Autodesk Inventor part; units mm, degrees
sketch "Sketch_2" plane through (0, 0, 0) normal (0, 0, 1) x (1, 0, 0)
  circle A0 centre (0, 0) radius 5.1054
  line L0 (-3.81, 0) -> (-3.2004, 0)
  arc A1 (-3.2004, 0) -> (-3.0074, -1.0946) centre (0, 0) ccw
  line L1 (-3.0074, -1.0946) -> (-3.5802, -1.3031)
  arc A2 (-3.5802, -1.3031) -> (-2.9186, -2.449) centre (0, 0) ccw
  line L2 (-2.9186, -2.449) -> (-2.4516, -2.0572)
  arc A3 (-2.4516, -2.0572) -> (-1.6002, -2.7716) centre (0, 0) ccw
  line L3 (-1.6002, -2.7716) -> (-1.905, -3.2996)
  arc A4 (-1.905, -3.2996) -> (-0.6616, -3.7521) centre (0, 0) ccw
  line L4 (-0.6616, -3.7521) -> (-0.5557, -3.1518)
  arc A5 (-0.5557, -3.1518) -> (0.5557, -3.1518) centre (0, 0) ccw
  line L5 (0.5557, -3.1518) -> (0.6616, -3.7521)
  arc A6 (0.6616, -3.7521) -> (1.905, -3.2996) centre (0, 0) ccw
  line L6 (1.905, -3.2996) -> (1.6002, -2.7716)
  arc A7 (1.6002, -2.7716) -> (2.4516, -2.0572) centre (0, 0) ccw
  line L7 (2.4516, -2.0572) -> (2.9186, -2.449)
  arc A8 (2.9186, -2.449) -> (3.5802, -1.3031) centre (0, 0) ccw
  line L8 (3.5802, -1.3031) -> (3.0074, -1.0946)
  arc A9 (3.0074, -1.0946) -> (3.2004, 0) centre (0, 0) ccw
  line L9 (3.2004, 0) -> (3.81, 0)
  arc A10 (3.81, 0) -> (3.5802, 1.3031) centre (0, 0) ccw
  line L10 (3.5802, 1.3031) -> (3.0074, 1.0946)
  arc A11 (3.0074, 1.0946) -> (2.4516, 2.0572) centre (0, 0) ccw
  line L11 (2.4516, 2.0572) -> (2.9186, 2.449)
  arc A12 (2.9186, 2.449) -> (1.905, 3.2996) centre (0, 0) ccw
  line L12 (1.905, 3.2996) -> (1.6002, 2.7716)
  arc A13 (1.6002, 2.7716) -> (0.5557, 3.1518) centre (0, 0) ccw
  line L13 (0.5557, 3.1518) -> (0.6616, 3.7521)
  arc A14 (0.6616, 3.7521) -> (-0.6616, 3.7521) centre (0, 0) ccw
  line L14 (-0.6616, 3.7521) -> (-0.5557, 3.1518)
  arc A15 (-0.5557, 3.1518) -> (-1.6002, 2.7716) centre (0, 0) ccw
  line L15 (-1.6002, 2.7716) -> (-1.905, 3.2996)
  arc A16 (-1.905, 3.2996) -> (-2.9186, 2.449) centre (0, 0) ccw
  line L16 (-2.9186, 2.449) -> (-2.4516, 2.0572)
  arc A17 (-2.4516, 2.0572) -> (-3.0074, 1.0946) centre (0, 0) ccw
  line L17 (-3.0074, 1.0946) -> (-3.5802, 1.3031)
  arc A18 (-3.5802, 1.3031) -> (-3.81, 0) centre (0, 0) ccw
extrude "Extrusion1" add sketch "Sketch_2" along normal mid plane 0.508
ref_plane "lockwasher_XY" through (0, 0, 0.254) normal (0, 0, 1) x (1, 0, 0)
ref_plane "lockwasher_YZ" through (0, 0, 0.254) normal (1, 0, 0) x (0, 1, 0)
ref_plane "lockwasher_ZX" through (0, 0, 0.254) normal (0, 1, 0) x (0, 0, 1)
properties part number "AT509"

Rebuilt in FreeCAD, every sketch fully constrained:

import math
import FreeCAD as App
import Part
import Sketcher

V = App.Vector
Q = App.Units.Quantity

doc = App.newDocument("Part")
body = doc.addObject("PartDesign::Body", "Body")

sketch1 = body.newObject("Sketcher::SketchObject", "Sketch")
sketch1.AttachmentSupport = (doc.getObject("XY_Plane"), [""])
sketch1.MapMode = "FlatFace"
sketch1.addGeometry(Part.Circle(V(0, 0, 0), V(0, 0, 1), 5.1054), False)
sketch1.addGeometry(Part.LineSegment(V(-3.2004, 0, 0), V(-3.81, 0, 0)), False)
sketch1.addGeometry(Part.ArcOfCircle(Part.Circle(V(0, 0, 0), V(0, 0, 1), 3.810037), math.radians(159.999805), math.radians(180)), False)
sketch1.addGeometry(Part.LineSegment(V(-3.5802, 1.3031, 0), V(-3.0074, 1.0946, 0)), False)
sketch1.addGeometry(Part.ArcOfCircle(Part.Circle(V(0, 0, 0), V(0, 0, 1), 3.200413), math.radians(139.999131), math.radians(160.000069)), False)
sketch1.addGeometry(Part.LineSegment(V(-2.4516, 2.0572, 0), V(-2.9186, 2.449, 0)), False)
sketch1.addGeometry(Part.ArcOfCircle(Part.Circle(V(-0.001387, 0.001981, 0), V(0, 0, 1), 3.807628), math.radians(119.996503), math.radians(140.009375)), False)
sketch1.addGeometry(Part.LineSegment(V(-1.905, 3.2996, 0), V(-1.6002, 2.7716, 0)), False)
sketch1.addGeometry(Part.ArcOfCircle(Part.Circle(V(-0.000319, 0.001192, 0), V(0, 0, 1), 3.199184), math.radians(99.997239), math.radians(120.005967)), False)
sketch1.addGeometry(Part.LineSegment(V(-0.5557, 3.1518, 0), V(-0.6616, 3.7521, 0)), False)
sketch1.addGeometry(Part.ArcOfCircle(Part.Circle(V(0, 0, 0), V(0, 0, 1), 3.809983), math.radians(79.999948), math.radians(100.000052)), False)
sketch1.addGeometry(Part.LineSegment(V(0.6616, 3.7521, 0), V(0.5557, 3.1518, 0)), False)
sketch1.addGeometry(Part.ArcOfCircle(Part.Circle(V(-0.000522, -0.001119, 0), V(0, 0, 1), 3.201606), math.radians(60.001678), math.radians(79.995117)), False)
sketch1.addGeometry(Part.LineSegment(V(1.6002, 2.7716, 0), V(1.905, 3.2996, 0)), False)
sketch1.addGeometry(Part.ArcOfCircle(Part.Circle(V(-0.001712, -0.001712, 0), V(0, 0, 1), 3.812377), math.radians(40.003216), math.radians(59.990905)), False)
sketch1.addGeometry(Part.LineSegment(V(2.9186, 2.449, 0), V(2.4516, 2.0572, 0)), False)
sketch1.addGeometry(Part.ArcOfCircle(Part.Circle(V(0, 0, 0), V(0, 0, 1), 3.200376), math.radians(19.999931), math.radians(40.000869)), False)
sketch1.addGeometry(Part.LineSegment(V(3.0074, 1.0946, 0), V(3.5802, 1.3031, 0)), False)
sketch1.addGeometry(Part.ArcOfCircle(Part.Circle(V(0, 0, 0), V(0, 0, 1), 3.809964), math.radians(0), math.radians(20.000195)), False)
sketch1.addGeometry(Part.LineSegment(V(3.81, 0, 0), V(3.2004, 0, 0)), False)
sketch1.addGeometry(Part.ArcOfCircle(Part.Circle(V(0, 0, 0), V(0, 0, 1), 3.200376), math.radians(-19.999931), math.radians(0)), False)
sketch1.addGeometry(Part.LineSegment(V(3.0074, -1.0946, 0), V(3.5802, -1.3031, 0)), False)
sketch1.addGeometry(Part.ArcOfCircle(Part.Circle(V(0, 0, 0), V(0, 0, 1), 3.810037), math.radians(-40.000044), math.radians(-20.000195)), False)
sketch1.addGeometry(Part.LineSegment(V(2.9186, -2.449, 0), V(2.4516, -2.0572, 0)), False)
sketch1.addGeometry(Part.ArcOfCircle(Part.Circle(V(0, 0, 0), V(0, 0, 1), 3.200413), math.radians(-59.999752), math.radians(-40.000869)), False)
sketch1.addGeometry(Part.LineSegment(V(1.6002, -2.7716, 0), V(1.905, -3.2996, 0)), False)
sketch1.addGeometry(Part.ArcOfCircle(Part.Circle(V(-0.000467, 0.001744, 0), V(0, 0, 1), 3.811781), math.radians(-79.997583), math.radians(-60.007348)), False)
sketch1.addGeometry(Part.LineSegment(V(0.6616, -3.7521, 0), V(0.5557, -3.1518, 0)), False)
sketch1.addGeometry(Part.ArcOfCircle(Part.Circle(V(0, 0, 0), V(0, 0, 1), 3.200413), math.radians(-99.999165), math.radians(-80.000835)), False)
sketch1.addGeometry(Part.LineSegment(V(-0.5557, -3.1518, 0), V(-0.6616, -3.7521, 0)), False)
sketch1.addGeometry(Part.ArcOfCircle(Part.Circle(V(-0.000762, -0.001635, 0), V(0, 0, 1), 3.808241), math.radians(-120.00204), math.radians(-99.993029)), False)
sketch1.addGeometry(Part.LineSegment(V(-1.905, -3.2996, 0), V(-1.6002, -2.7716, 0)), False)
sketch1.addGeometry(Part.ArcOfCircle(Part.Circle(V(0, 0, 0), V(0, 0, 1), 3.200376), math.radians(-139.999131), math.radians(-120.000248)), False)
sketch1.addGeometry(Part.LineSegment(V(-2.4516, -2.0572, 0), V(-2.9186, -2.449, 0)), False)
sketch1.addGeometry(Part.ArcOfCircle(Part.Circle(V(0, 0, 0), V(0, 0, 1), 3.809964), math.radians(-159.999805), math.radians(-139.999956)), False)
sketch1.addGeometry(Part.LineSegment(V(-3.5802, -1.3031, 0), V(-3.0074, -1.0946, 0)), False)
sketch1.addGeometry(Part.ArcOfCircle(Part.Circle(V(0, 0, 0), V(0, 0, 1), 3.200413), math.radians(180), math.radians(199.999931)), False)
sketch1.addConstraint(Sketcher.Constraint("Coincident", 1, 2, 2, 2))
sketch1.addConstraint(Sketcher.Constraint("Coincident", 2, 1, 3, 1))
sketch1.addConstraint(Sketcher.Constraint("Coincident", 3, 2, 4, 2))
sketch1.addConstraint(Sketcher.Constraint("Coincident", 4, 1, 5, 1))
sketch1.addConstraint(Sketcher.Constraint("Coincident", 5, 2, 6, 2))
sketch1.addConstraint(Sketcher.Constraint("Coincident", 6, 1, 7, 1))
sketch1.addConstraint(Sketcher.Constraint("Coincident", 7, 2, 8, 2))
sketch1.addConstraint(Sketcher.Constraint("Coincident", 8, 1, 9, 1))
sketch1.addConstraint(Sketcher.Constraint("Coincident", 9, 2, 10, 2))
sketch1.addConstraint(Sketcher.Constraint("Coincident", 10, 1, 11, 1))
sketch1.addConstraint(Sketcher.Constraint("Coincident", 11, 2, 12, 2))
sketch1.addConstraint(Sketcher.Constraint("Coincident", 12, 1, 13, 1))
sketch1.addConstraint(Sketcher.Constraint("Coincident", 13, 2, 14, 2))
sketch1.addConstraint(Sketcher.Constraint("Coincident", 14, 1, 15, 1))
sketch1.addConstraint(Sketcher.Constraint("Coincident", 15, 2, 16, 2))
sketch1.addConstraint(Sketcher.Constraint("Coincident", 16, 1, 17, 1))
sketch1.addConstraint(Sketcher.Constraint("Coincident", 17, 2, 18, 2))
sketch1.addConstraint(Sketcher.Constraint("Coincident", 18, 1, 19, 1))
sketch1.addConstraint(Sketcher.Constraint("Coincident", 19, 2, 20, 2))
sketch1.addConstraint(Sketcher.Constraint("Coincident", 20, 1, 21, 1))
sketch1.addConstraint(Sketcher.Constraint("Coincident", 21, 2, 22, 2))
sketch1.addConstraint(Sketcher.Constraint("Coincident", 22, 1, 23, 1))
sketch1.addConstraint(Sketcher.Constraint("Coincident", 23, 2, 24, 2))
sketch1.addConstraint(Sketcher.Constraint("Coincident", 24, 1, 25, 1))
sketch1.addConstraint(Sketcher.Constraint("Coincident", 25, 2, 26, 2))
sketch1.addConstraint(Sketcher.Constraint("Coincident", 26, 1, 27, 1))
sketch1.addConstraint(Sketcher.Constraint("Coincident", 27, 2, 28, 2))
sketch1.addConstraint(Sketcher.Constraint("Coincident", 28, 1, 29, 1))
sketch1.addConstraint(Sketcher.Constraint("Coincident", 29, 2, 30, 2))
sketch1.addConstraint(Sketcher.Constraint("Coincident", 30, 1, 31, 1))
sketch1.addConstraint(Sketcher.Constraint("Coincident", 31, 2, 32, 2))
sketch1.addConstraint(Sketcher.Constraint("Coincident", 32, 1, 33, 1))
sketch1.addConstraint(Sketcher.Constraint("Coincident", 33, 2, 34, 2))
sketch1.addConstraint(Sketcher.Constraint("Coincident", 34, 1, 35, 1))
sketch1.addConstraint(Sketcher.Constraint("Coincident", 35, 2, 36, 2))
sketch1.addConstraint(Sketcher.Constraint("Coincident", 36, 1, 1, 1))
sketch1.addConstraint(Sketcher.Constraint("Horizontal", 1))
sketch1.addConstraint(Sketcher.Constraint("Horizontal", 19))
sketch1.addConstraint(Sketcher.Constraint("Coincident", 0, 3, -1, 1))
sketch1.addConstraint(Sketcher.Constraint("Coincident", 2, 3, -1, 1))
sketch1.addConstraint(Sketcher.Constraint("Coincident", 4, 3, -1, 1))
sketch1.addConstraint(Sketcher.Constraint("Coincident", 10, 3, -1, 1))
sketch1.addConstraint(Sketcher.Constraint("Coincident", 16, 3, -1, 1))
sketch1.addConstraint(Sketcher.Constraint("Coincident", 18, 3, -1, 1))
sketch1.addConstraint(Sketcher.Constraint("Coincident", 20, 3, -1, 1))
sketch1.addConstraint(Sketcher.Constraint("Coincident", 22, 3, -1, 1))
sketch1.addConstraint(Sketcher.Constraint("Coincident", 24, 3, -1, 1))
sketch1.addConstraint(Sketcher.Constraint("Coincident", 28, 3, -1, 1))
sketch1.addConstraint(Sketcher.Constraint("Coincident", 32, 3, -1, 1))
sketch1.addConstraint(Sketcher.Constraint("Coincident", 34, 3, -1, 1))
sketch1.addConstraint(Sketcher.Constraint("Coincident", 36, 3, -1, 1))
sketch1.addConstraint(Sketcher.Constraint("Equal", 2, 10))
sketch1.addConstraint(Sketcher.Constraint("Equal", 4, 16))
sketch1.addConstraint(Sketcher.Constraint("Equal", 10, 18))
sketch1.addConstraint(Sketcher.Constraint("Equal", 16, 20))
sketch1.addConstraint(Sketcher.Constraint("Equal", 18, 22))
sketch1.addConstraint(Sketcher.Constraint("Equal", 20, 24))
sketch1.addConstraint(Sketcher.Constraint("Equal", 24, 28))
sketch1.addConstraint(Sketcher.Constraint("Equal", 28, 32))
sketch1.addConstraint(Sketcher.Constraint("Equal", 22, 34))
sketch1.addConstraint(Sketcher.Constraint("Equal", 32, 36))
sketch1.addConstraint(Sketcher.Constraint("Symmetric", 5, 2, 22, 1, -1, 1))
sketch1.addConstraint(Sketcher.Constraint("Symmetric", 7, 2, 24, 1, -1, 1))
sketch1.addConstraint(Sketcher.Constraint("Symmetric", 6, 1, 25, 2, -1, 1))
sketch1.addConstraint(Sketcher.Constraint("Symmetric", 9, 2, 26, 1, -1, 1))
sketch1.addConstraint(Sketcher.Constraint("Symmetric", 8, 1, 27, 2, -1, 1))
sketch1.addConstraint(Sketcher.Constraint("Symmetric", 11, 2, 28, 1, -1, 1))
sketch1.addConstraint(Sketcher.Constraint("Symmetric", 10, 1, 29, 2, -1, 1))
sketch1.addConstraint(Sketcher.Constraint("Symmetric", 13, 2, 30, 1, -1, 1))
sketch1.addConstraint(Sketcher.Constraint("Symmetric", 12, 1, 31, 2, -1, 1))
sketch1.addConstraint(Sketcher.Constraint("Symmetric", 14, 1, 33, 2, -1, 1))
sketch1.addConstraint(Sketcher.Constraint("Symmetric", 6, 1, 13, 2, -2))
sketch1.addConstraint(Sketcher.Constraint("Symmetric", 26, 3, 30, 3, -1))
sketch1.addConstraint(Sketcher.Constraint("PointOnObject", 1, 2, -1))
sketch1.addConstraint(Sketcher.Constraint("PointOnObject", 18, 1, -1))
sketch1.addConstraint(Sketcher.Constraint("Parallel", 3, 21))
sketch1.addConstraint(Sketcher.Constraint("Parallel", 5, 23))
sketch1.addConstraint(Sketcher.Constraint("Parallel", 15, 33))
sketch1.addConstraint(Sketcher.Constraint("Parallel", 17, 35))
sketch1.addConstraint(Sketcher.Constraint("Horizontal", 14, 3, 30, 3))
sketch1.addConstraint(Sketcher.Constraint("Horizontal", 9, 2, 10, 1))
sketch1.addConstraint(Sketcher.Constraint("Horizontal", 8, 1, 11, 2))
sketch1.addConstraint(Sketcher.Constraint("Horizontal", 7, 2, 12, 1))
sketch1.addConstraint(Sketcher.Constraint("Horizontal", 5, 2, 14, 1))
sketch1.addConstraint(Sketcher.Constraint("Horizontal", 4, 1, 15, 2))
sketch1.addConstraint(Sketcher.Constraint("Horizontal", 3, 2, 16, 1))
sketch1.addConstraint(Sketcher.Constraint("Horizontal", 2, 1, 17, 2))
sketch1.addConstraint(Sketcher.Constraint("Horizontal", 21, 2, 34, 1))
sketch1.addConstraint(Sketcher.Constraint("Vertical", 12, 3, 26, 3))
sketch1.addConstraint(Sketcher.Constraint("Vertical", 16, 1, 20, 1))
sketch1.addConstraint(Sketcher.Constraint("Radius", 2, Q("0.15 in")))
sketch1.addConstraint(Sketcher.Constraint("Diameter", 0, Q("0.402 in")))
sketch1.addConstraint(Sketcher.Constraint("Radius", 4, Q("0.126 in")))
sketch1.addConstraint(Sketcher.Constraint("DistanceX", 12, 3, 8, 3, Q("0 in")))
sketch1.addConstraint(Sketcher.Constraint("DistanceY", 26, 3, 6, 3, Q("0 in")))
sketch1.addConstraint(Sketcher.Constraint("Radius", 6, Q("0.1499 in")))
sketch1.addConstraint(Sketcher.Constraint("DistanceY", -1, 1, 4, 1, Q("0.081 in")))
sketch1.addConstraint(Sketcher.Constraint("DistanceX", 6, 1, -1, 1, Q("0.075 in")))
sketch1.addConstraint(Sketcher.Constraint("DistanceX", 7, 2, -1, 1, Q("0.063 in")))
sketch1.addConstraint(Sketcher.Constraint("DistanceY", 6, 3, 8, 1, Q("0.124 in")))
sketch1.addConstraint(Sketcher.Constraint("DistanceY", -1, 1, 2, 1, Q("0.0513 in")))
sketch1.addConstraint(Sketcher.Constraint("DistanceX", 3, 2, -1, 1, Q("0.1184 in")))
sketch1.addConstraint(Sketcher.Constraint("DistanceX", 5, 2, -1, 1, Q("0.1149 in")))
sketch1.addConstraint(Sketcher.Constraint("DistanceY", 7, 2, 9, 2, Q("0.0386 in")))
pad1 = body.newObject("PartDesign::Pad", "Pad")
pad1.Profile = sketch1
pad1.Length = Q("0.02 in")
pad1.Midplane = True

doc.recompute()
